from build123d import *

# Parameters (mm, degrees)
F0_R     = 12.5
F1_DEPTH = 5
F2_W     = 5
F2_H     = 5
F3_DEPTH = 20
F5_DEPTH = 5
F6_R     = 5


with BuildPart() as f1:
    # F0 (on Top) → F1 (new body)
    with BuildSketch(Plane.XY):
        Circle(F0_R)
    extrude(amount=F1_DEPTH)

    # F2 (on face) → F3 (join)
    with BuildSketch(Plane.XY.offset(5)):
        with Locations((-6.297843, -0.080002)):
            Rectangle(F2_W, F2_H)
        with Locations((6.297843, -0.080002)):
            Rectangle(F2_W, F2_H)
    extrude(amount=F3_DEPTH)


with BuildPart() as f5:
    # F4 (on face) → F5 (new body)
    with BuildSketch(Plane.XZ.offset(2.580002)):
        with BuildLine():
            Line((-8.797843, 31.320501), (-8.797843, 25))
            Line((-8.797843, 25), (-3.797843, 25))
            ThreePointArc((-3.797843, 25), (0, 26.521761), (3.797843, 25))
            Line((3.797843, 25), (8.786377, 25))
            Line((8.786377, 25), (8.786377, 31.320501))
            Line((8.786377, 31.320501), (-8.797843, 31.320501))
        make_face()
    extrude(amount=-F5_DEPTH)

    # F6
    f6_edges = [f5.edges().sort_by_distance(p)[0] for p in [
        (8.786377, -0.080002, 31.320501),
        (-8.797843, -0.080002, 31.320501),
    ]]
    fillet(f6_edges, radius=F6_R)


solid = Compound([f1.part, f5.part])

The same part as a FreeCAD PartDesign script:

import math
import FreeCAD as App
import Part
import Sketcher


def edges_at(feature, points):
    """Names of the edges that pass closest to the given points."""
    edges = feature.Shape.Edges
    near = lambda p: min(range(len(edges)), key=lambda i: edges[i].distToShape(Part.Vertex(*p))[0])
    return sorted({f"Edge{near(p) + 1}" for p in points})


def add_polygon(sketch, points):
    """Adds a closed chain of lines whose ends are joined by coincident constraints."""
    first, n = sketch.GeometryCount, len(points)
    for a, b in zip(points, points[1:] + points[:1]):
        sketch.addGeometry(Part.LineSegment(App.Vector(*a, 0), App.Vector(*b, 0)), False)
    for i in range(n):
        sketch.addConstraint(Sketcher.Constraint("Coincident", first + i, 2, first + (i + 1) % n, 1))

doc = App.newDocument("Part")
body = doc.addObject("PartDesign::Body", "Body")

# Sketch on XY plane
sketch1 = body.newObject("Sketcher::SketchObject", "Sketch")
sketch1.AttachmentSupport = (doc.getObject("XY_Plane"), [""])
sketch1.MapMode = "FlatFace"
sketch1.addGeometry(Part.Circle(App.Vector(0, 0, 0), App.Vector(0, 0, 1), 12), False)
sketch1.addConstraint([
    Sketcher.Constraint("Coincident", 0, 3, -1, 1),
    Sketcher.Constraint("Diameter", 0, 25.0),
])
pad1 = body.newObject("PartDesign::Pad", "Pad")
pad1.Profile = sketch1
pad1.Length = 5

# Sketch on XY plane
sketch2 = body.newObject("Sketcher::SketchObject", "Sketch001")
sketch2.AttachmentSupport = (doc.getObject("XY_Plane"), [""])
sketch2.MapMode = "FlatFace"
sketch2.AttachmentOffset = App.Placement(App.Vector(0, 0, 5), App.Rotation())
add_polygon(sketch2, [(-9, 2), (-9, -3), (-4, -3), (-4, 2)])  # lines 0-3
add_polygon(sketch2, [(4, 2), (4, -3), (9, -3), (9, 2)])  # lines 4-7
sketch2.addConstraint([
    Sketcher.Constraint("Vertical", 0),
    Sketcher.Constraint("Horizontal", 1),
    Sketcher.Constraint("Vertical", 2),
    Sketcher.Constraint("Horizontal", 3),
    Sketcher.Constraint("Vertical", 4),
    Sketcher.Constraint("Horizontal", 5),
    Sketcher.Constraint("Vertical", 6),
    Sketcher.Constraint("Horizontal", 7),
    Sketcher.Constraint("Symmetric", 1, 2, 4, 2, -2),
    Sketcher.Constraint("Symmetric", 3, 2, 6, 2, -2),
    Sketcher.Constraint("Equal", 7, 0),
    Sketcher.Constraint("DistanceX", 1, 1, 1, 2, 5.0),
    Sketcher.Constraint("DistanceY", 0, 2, -1, 1, 2.580002),
    Sketcher.Constraint("DistanceX", 0, 2, -1, 1, 8.797843),
])
pad2 = body.newObject("PartDesign::Pad", "Pad001")
pad2.Profile = sketch2
pad2.Length = 20
body2 = doc.addObject("PartDesign::Body", "Body001")

# Sketch on XZ plane
sketch3 = body2.newObject("Sketcher::SketchObject", "Sketch002")
sketch3.AttachmentSupport = (doc.getObject("XZ_Plane001"), [""])
sketch3.MapMode = "FlatFace"
sketch3.AttachmentOffset = App.Placement(App.Vector(0, 0, 2.580002), App.Rotation())
sketch3.addGeometry([
    Part.LineSegment(App.Vector(-8.8, 31.3, 0), App.Vector(-8.8, 25, 0)),  # 0
    Part.LineSegment(App.Vector(-8.8, 25, 0), App.Vector(-3.8, 25, 0)),  # 1
    Part.ArcOfCircle(Part.Circle(App.Vector(0, 21, 0), App.Vector(0, 0, 1), 5.5), math.radians(46), math.radians(134)),  # 2
    Part.LineSegment(App.Vector(3.8, 25, 0), App.Vector(8.8, 25, 0)),  # 3
    Part.LineSegment(App.Vector(8.8, 25, 0), App.Vector(8.8, 31.3, 0)),  # 4
    Part.LineSegment(App.Vector(8.8, 31.3, 0), App.Vector(-8.8, 31.3, 0)),  # 5
], False)
sketch3.addConstraint([
    Sketcher.Constraint("Coincident", 0, 2, 1, 1),
    Sketcher.Constraint("Coincident", 1, 2, 2, 2),
    Sketcher.Constraint("Coincident", 2, 1, 3, 1),
    Sketcher.Constraint("Coincident", 3, 2, 4, 1),
    Sketcher.Constraint("Coincident", 4, 2, 5, 1),
    Sketcher.Constraint("Coincident", 5, 2, 0, 1),
    Sketcher.Constraint("Vertical", 0),
    Sketcher.Constraint("Horizontal", 1),
    Sketcher.Constraint("Horizontal", 3),
    Sketcher.Constraint("Vertical", 4),
    Sketcher.Constraint("Horizontal", 5),
    Sketcher.Constraint("Symmetric", 1, 2, 2, 1, -2),
    Sketcher.Constraint("Radius", 2, 5.499999),
    Sketcher.Constraint("DistanceX", 1, 1, 1, 2, 5.0),
    Sketcher.Constraint("DistanceY", -1, 1, 0, 2, 25.0),
    Sketcher.Constraint("DistanceY", 0, 2, 0, 1, 6.320501),
    Sketcher.Constraint("DistanceX", 5, 2, 5, 1, 17.58422),
    Sketcher.Constraint("DistanceX", 3, 1, 3, 2, 4.988534),
])
pad3 = body2.newObject("PartDesign::Pad", "Pad002")
pad3.Profile = sketch3
pad3.Length = 5
pad3.Reversed = True
doc.recompute()

fillet = body2.newObject("PartDesign::Fillet", "Fillet")
fillet.Base = (pad3, edges_at(pad3, [(8.786, -0.08, 31.321), (-8.798, -0.08, 31.321)]))
fillet.Radius = 5

doc.recompute()
